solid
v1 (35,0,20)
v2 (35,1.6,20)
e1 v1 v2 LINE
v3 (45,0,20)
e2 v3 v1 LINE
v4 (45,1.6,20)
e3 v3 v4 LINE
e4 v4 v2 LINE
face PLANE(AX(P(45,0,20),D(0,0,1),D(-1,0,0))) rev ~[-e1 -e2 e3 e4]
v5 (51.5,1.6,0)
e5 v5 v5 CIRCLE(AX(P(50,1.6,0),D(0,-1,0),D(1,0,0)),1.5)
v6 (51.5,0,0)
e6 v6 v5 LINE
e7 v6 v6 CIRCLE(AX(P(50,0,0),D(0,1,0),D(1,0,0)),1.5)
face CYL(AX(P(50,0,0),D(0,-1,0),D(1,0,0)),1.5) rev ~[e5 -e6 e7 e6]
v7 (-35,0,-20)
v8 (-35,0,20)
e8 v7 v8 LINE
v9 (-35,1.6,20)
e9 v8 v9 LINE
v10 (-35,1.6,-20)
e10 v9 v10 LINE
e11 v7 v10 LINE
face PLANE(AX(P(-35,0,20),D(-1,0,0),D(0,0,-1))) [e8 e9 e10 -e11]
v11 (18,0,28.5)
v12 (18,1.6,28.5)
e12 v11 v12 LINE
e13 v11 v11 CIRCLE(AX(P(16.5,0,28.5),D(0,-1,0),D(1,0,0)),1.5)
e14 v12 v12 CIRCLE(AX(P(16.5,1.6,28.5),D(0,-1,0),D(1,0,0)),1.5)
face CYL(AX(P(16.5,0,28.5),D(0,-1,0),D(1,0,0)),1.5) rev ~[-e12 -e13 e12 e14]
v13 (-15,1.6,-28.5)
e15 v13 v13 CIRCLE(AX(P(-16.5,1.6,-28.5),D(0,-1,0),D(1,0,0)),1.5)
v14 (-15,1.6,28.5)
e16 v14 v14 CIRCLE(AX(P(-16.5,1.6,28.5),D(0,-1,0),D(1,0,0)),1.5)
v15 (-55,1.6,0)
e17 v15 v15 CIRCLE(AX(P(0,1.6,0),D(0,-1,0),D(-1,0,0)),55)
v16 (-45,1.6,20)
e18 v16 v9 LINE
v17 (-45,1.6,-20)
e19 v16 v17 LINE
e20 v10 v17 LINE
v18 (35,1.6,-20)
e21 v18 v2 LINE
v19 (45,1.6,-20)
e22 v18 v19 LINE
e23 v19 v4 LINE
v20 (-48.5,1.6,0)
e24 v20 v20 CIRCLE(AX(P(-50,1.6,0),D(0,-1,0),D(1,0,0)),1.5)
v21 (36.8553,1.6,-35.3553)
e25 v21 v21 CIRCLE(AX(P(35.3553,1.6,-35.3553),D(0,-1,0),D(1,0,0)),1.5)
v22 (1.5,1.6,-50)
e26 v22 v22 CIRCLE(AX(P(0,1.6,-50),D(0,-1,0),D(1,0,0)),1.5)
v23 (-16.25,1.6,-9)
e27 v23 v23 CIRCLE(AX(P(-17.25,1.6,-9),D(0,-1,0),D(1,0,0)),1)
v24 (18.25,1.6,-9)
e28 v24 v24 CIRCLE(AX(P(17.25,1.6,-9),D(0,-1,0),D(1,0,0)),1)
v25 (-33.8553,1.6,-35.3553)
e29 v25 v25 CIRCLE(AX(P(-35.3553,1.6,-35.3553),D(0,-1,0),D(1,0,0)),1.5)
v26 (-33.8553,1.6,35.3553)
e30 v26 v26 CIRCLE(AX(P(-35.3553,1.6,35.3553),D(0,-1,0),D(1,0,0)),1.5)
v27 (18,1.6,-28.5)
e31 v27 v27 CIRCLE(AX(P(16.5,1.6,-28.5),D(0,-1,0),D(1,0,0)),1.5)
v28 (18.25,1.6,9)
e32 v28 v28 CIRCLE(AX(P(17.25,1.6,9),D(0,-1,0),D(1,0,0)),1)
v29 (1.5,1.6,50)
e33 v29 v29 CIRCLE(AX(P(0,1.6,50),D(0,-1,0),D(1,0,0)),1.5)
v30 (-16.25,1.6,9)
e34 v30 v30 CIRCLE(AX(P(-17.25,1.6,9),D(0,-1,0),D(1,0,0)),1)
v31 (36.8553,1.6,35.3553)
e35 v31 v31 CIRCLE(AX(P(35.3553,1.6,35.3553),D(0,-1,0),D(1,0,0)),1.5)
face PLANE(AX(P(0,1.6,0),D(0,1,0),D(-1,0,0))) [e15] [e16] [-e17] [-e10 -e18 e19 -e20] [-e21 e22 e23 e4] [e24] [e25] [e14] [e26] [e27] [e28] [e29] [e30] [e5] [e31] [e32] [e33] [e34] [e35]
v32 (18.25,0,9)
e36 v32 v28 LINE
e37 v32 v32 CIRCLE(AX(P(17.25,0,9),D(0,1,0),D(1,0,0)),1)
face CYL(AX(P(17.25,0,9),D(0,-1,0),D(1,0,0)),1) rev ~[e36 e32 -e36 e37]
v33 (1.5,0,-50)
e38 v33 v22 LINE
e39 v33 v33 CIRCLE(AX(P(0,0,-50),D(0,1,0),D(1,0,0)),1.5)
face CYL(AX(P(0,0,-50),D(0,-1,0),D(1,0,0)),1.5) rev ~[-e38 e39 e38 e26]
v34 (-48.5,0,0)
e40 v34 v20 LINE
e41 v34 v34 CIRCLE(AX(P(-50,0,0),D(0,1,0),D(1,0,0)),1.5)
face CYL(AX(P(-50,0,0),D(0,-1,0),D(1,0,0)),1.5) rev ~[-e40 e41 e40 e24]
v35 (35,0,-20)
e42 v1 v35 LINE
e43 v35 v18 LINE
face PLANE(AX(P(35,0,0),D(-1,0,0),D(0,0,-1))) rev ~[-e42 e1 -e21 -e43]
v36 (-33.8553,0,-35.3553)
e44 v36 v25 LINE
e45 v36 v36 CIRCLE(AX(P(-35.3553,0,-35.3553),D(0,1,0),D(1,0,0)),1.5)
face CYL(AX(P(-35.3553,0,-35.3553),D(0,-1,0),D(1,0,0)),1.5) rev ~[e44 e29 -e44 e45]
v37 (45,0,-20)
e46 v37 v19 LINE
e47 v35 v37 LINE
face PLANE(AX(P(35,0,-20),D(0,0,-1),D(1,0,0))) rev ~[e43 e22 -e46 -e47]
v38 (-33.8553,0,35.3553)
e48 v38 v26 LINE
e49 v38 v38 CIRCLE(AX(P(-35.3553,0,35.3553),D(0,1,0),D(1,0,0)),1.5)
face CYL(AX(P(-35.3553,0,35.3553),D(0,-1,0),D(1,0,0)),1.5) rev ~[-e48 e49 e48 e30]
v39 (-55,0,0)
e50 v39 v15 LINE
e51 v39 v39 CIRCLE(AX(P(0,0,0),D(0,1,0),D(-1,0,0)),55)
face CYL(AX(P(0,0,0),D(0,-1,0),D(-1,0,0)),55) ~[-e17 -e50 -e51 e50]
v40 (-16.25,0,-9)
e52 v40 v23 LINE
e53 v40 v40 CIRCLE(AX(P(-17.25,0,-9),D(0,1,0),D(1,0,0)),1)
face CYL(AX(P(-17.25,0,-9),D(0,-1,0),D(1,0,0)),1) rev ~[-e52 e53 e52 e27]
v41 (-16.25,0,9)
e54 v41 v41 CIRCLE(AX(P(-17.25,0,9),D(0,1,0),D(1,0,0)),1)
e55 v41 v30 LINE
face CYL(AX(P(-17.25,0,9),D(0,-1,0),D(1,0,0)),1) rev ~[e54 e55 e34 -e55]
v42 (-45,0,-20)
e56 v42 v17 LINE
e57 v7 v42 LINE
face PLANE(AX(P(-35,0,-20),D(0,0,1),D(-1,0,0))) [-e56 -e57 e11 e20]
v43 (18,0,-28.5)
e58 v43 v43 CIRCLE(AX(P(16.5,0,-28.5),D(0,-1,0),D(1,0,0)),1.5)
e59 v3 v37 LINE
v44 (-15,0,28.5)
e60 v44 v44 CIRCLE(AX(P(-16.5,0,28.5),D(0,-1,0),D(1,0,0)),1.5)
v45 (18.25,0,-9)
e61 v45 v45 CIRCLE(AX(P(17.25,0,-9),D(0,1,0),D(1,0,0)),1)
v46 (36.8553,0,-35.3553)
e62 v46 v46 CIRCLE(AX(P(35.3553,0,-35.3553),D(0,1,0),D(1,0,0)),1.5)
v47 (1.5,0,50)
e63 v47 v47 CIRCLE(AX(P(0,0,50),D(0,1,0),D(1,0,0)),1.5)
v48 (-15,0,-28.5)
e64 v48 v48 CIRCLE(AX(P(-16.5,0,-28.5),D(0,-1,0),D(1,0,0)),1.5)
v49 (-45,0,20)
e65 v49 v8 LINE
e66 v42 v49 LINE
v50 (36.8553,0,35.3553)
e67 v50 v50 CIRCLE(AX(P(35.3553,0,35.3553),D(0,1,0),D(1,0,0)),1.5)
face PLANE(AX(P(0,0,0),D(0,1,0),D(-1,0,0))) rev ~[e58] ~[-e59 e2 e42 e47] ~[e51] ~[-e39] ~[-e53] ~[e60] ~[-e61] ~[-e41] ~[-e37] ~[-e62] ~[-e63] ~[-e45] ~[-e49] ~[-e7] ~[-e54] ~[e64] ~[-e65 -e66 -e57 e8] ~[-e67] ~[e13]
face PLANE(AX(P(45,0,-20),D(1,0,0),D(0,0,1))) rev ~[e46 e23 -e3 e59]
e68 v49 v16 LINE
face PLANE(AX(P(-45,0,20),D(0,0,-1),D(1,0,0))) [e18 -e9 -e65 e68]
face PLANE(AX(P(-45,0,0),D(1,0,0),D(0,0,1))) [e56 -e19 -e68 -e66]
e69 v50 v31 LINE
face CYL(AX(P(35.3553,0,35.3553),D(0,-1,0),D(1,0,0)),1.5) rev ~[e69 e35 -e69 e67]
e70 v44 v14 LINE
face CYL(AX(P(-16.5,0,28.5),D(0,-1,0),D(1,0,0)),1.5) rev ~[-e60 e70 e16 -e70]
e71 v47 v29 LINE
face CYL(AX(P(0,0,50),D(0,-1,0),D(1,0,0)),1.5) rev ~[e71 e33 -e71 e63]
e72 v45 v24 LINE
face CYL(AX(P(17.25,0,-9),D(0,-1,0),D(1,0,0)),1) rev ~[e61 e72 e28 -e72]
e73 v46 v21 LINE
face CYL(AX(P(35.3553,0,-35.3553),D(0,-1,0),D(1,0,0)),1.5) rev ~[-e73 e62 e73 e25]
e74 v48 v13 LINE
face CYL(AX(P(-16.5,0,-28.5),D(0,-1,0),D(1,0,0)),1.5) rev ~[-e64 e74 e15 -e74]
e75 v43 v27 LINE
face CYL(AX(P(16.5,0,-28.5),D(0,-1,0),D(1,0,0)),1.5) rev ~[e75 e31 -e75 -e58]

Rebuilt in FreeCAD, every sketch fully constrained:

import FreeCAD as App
import Part
import Sketcher
from FreeCAD import Vector
Q = App.Units.Quantity

doc = App.newDocument("Part")
body = doc.addObject("PartDesign::Body", "Body")

# Sketch on XZ plane
sketch1 = body.newObject("Sketcher::SketchObject", "Sketch")
sketch1.AttachmentSupport = (doc.getObject("XZ_Plane"), [""])
sketch1.MapMode = "FlatFace"
sketch1.addGeometry(Part.Circle(Vector(0, 0, 0), Vector(0, 0, 1), 55), False)
sketch1.addConstraint(Sketcher.Constraint("Coincident", 0, 3, -1, 1))
sketch1.addConstraint(Sketcher.Constraint("Diameter", 0, Q("110 mm")))
pad1 = body.newObject("PartDesign::Pad", "Pad")
pad1.Profile = sketch1
pad1.Length = 1.6
pad1.Reversed = True

# Sketch on XZ plane
sketch2 = body.newObject("Sketcher::SketchObject", "Sketch001")
sketch2.AttachmentSupport = (doc.getObject("XZ_Plane"), [""])
sketch2.MapMode = "FlatFace"
sketch2.addGeometry(Part.Circle(Vector(50, 0, 0), Vector(0, 0, 1), 1.5), False)
sketch2.addGeometry(Part.Circle(Vector(0, 50, 0), Vector(0, 0, 1), 1.5), False)
sketch2.addGeometry(Part.Circle(Vector(0, -50, 0), Vector(0, 0, 1), 1.5), False)
sketch2.addGeometry(Part.Circle(Vector(-50, 0, 0), Vector(0, 0, 1), 1.5), False)
sketch2.addGeometry(Part.Circle(Vector(35.4, 35.4, 0), Vector(0, 0, 1), 1.5), False)
sketch2.addGeometry(Part.Circle(Vector(35.4, -35.4, 0), Vector(0, 0, 1), 1.5), False)
sketch2.addGeometry(Part.Circle(Vector(-35.4, 35.4, 0), Vector(0, 0, 1), 1.5), False)
sketch2.addGeometry(Part.Circle(Vector(-35.4, -35.4, 0), Vector(0, 0, 1), 1.5), False)
sketch2.addGeometry(Part.LineSegment(Vector(45, -20, 0), Vector(45, 20, 0)), False)
sketch2.addGeometry(Part.LineSegment(Vector(45, 20, 0), Vector(35, 20, 0)), False)
sketch2.addGeometry(Part.LineSegment(Vector(35, 20, 0), Vector(35, -20, 0)), False)
sketch2.addGeometry(Part.LineSegment(Vector(35, -20, 0), Vector(45, -20, 0)), False)
sketch2.addGeometry(Part.LineSegment(Vector(-45, 20, 0), Vector(-45, -20, 0)), False)
sketch2.addGeometry(Part.LineSegment(Vector(-45, -20, 0), Vector(-35, -20, 0)), False)
sketch2.addGeometry(Part.LineSegment(Vector(-35, -20, 0), Vector(-35, 20, 0)), False)
sketch2.addGeometry(Part.LineSegment(Vector(-35, 20, 0), Vector(-45, 20, 0)), False)
sketch2.addGeometry(Part.Circle(Vector(-17.2, -9, 0), Vector(0, 0, 1), 1), False)
sketch2.addGeometry(Part.Circle(Vector(-17.2, 9, 0), Vector(0, 0, 1), 1), False)
sketch2.addGeometry(Part.Circle(Vector(17.2, -9, 0), Vector(0, 0, 1), 1), False)
sketch2.addGeometry(Part.Circle(Vector(17.2, 9, 0), Vector(0, 0, 1), 1), False)
sketch2.addConstraint(Sketcher.Constraint("Coincident", 8, 2, 9, 1))
sketch2.addConstraint(Sketcher.Constraint("Coincident", 9, 2, 10, 1))
sketch2.addConstraint(Sketcher.Constraint("Coincident", 10, 2, 11, 1))
sketch2.addConstraint(Sketcher.Constraint("Coincident", 11, 2, 8, 1))
sketch2.addConstraint(Sketcher.Constraint("Coincident", 12, 2, 13, 1))
sketch2.addConstraint(Sketcher.Constraint("Coincident", 13, 2, 14, 1))
sketch2.addConstraint(Sketcher.Constraint("Coincident", 14, 2, 15, 1))
sketch2.addConstraint(Sketcher.Constraint("Coincident", 15, 2, 12, 1))
sketch2.addConstraint(Sketcher.Constraint("Vertical", 8))
sketch2.addConstraint(Sketcher.Constraint("Horizontal", 9))
sketch2.addConstraint(Sketcher.Constraint("Vertical", 10))
sketch2.addConstraint(Sketcher.Constraint("Horizontal", 11))
sketch2.addConstraint(Sketcher.Constraint("Vertical", 12))
sketch2.addConstraint(Sketcher.Constraint("Horizontal", 13))
sketch2.addConstraint(Sketcher.Constraint("Vertical", 14))
sketch2.addConstraint(Sketcher.Constraint("Horizontal", 15))
sketch2.addConstraint(Sketcher.Constraint("Equal", 0, 1))
sketch2.addConstraint(Sketcher.Constraint("Equal", 1, 2))
sketch2.addConstraint(Sketcher.Constraint("Equal", 2, 3))
sketch2.addConstraint(Sketcher.Constraint("Equal", 3, 4))
sketch2.addConstraint(Sketcher.Constraint("Equal", 4, 5))
sketch2.addConstraint(Sketcher.Constraint("Equal", 5, 6))
sketch2.addConstraint(Sketcher.Constraint("Equal", 6, 7))
sketch2.addConstraint(Sketcher.Constraint("Equal", 16, 17))
sketch2.addConstraint(Sketcher.Constraint("Equal", 17, 18))
sketch2.addConstraint(Sketcher.Constraint("Equal", 18, 19))
sketch2.addConstraint(Sketcher.Constraint("Symmetric", 1, 3, 2, 3, -1, 1))
sketch2.addConstraint(Sketcher.Constraint("Symmetric", 0, 3, 3, 3, -1, 1))
sketch2.addConstraint(Sketcher.Constraint("Symmetric", 5, 3, 6, 3, -1, 1))
sketch2.addConstraint(Sketcher.Constraint("Symmetric", 4, 3, 7, 3, -1, 1))
sketch2.addConstraint(Sketcher.Constraint("Symmetric", 17, 3, 18, 3, -1, 1))
sketch2.addConstraint(Sketcher.Constraint("Symmetric", 16, 3, 19, 3, -1, 1))
sketch2.addConstraint(Sketcher.Constraint("Symmetric", 8, 2, 12, 2, -1, 1))
sketch2.addConstraint(Sketcher.Constraint("Symmetric", 10, 2, 14, 2, -1, 1))
sketch2.addConstraint(Sketcher.Constraint("Symmetric", 4, 3, 6, 3, -2))
sketch2.addConstraint(Sketcher.Constraint("Symmetric", 16, 3, 18, 3, -2))
sketch2.addConstraint(Sketcher.Constraint("PointOnObject", 0, 3, -1))
sketch2.addConstraint(Sketcher.Constraint("PointOnObject", 1, 3, -2))
sketch2.addConstraint(Sketcher.Constraint("Horizontal", 11, 2, 12, 2))
sketch2.addConstraint(Sketcher.Constraint("Diameter", 0, Q("3 mm")))
sketch2.addConstraint(Sketcher.Constraint("Diameter", 16, Q("2 mm")))
sketch2.addConstraint(Sketcher.Constraint("DistanceX", 9, 2, 9, 1, Q("10 mm")))
sketch2.addConstraint(Sketcher.Constraint("DistanceY", 8, 1, 8, 2, Q("40 mm")))
sketch2.addConstraint(Sketcher.Constraint("DistanceX", -1, 1, 8, 2, Q("45 mm")))
sketch2.addConstraint(Sketcher.Constraint("DistanceY", 2, 3, 1, 3, Q("100 mm")))
sketch2.addConstraint(Sketcher.Constraint("DistanceX", 3, 3, 0, 3, Q("100 mm")))
sketch2.addConstraint(Sketcher.Constraint("DistanceY", 16, 3, 17, 3, Q("18 mm")))
sketch2.addConstraint(Sketcher.Constraint("DistanceX", 16, 3, 18, 3, Q("34.5 mm")))
sketch2.addConstraint(Sketcher.Constraint("DistanceX", -1, 1, 4, 3, Q("35.3553 mm")))
sketch2.addConstraint(Sketcher.Constraint("DistanceY", -1, 1, 4, 3, Q("35.3553 mm")))
pocket1 = body.newObject("PartDesign::Pocket", "Pocket")
pocket1.Profile = sketch2
pocket1.Length = 1.6

# Sketch on XZ plane
sketch3 = body.newObject("Sketcher::SketchObject", "Sketch002")
sketch3.AttachmentSupport = (doc.getObject("XZ_Plane"), [""])
sketch3.MapMode = "FlatFace"
sketch3.addGeometry(Part.Circle(Vector(-16.5, -28.5, 0), Vector(0, 0, 1), 1.5), False)
sketch3.addGeometry(Part.Circle(Vector(16.5, -28.5, 0), Vector(0, 0, 1), 1.5), False)
sketch3.addGeometry(Part.Circle(Vector(16.5, 28.5, 0), Vector(0, 0, 1), 1.5), False)
sketch3.addGeometry(Part.Circle(Vector(-16.5, 28.5, 0), Vector(0, 0, 1), 1.5), False)
sketch3.addConstraint(Sketcher.Constraint("Equal", 0, 1))
sketch3.addConstraint(Sketcher.Constraint("Equal", 1, 2))
sketch3.addConstraint(Sketcher.Constraint("Equal", 2, 3))
sketch3.addConstraint(Sketcher.Constraint("Symmetric", 0, 3, 2, 3, -1, 1))
sketch3.addConstraint(Sketcher.Constraint("Symmetric", 1, 3, 3, 3, -1, 1))
sketch3.addConstraint(Sketcher.Constraint("Symmetric", 0, 3, 1, 3, -2))
sketch3.addConstraint(Sketcher.Constraint("Diameter", 0, Q("3 mm")))
sketch3.addConstraint(Sketcher.Constraint("DistanceX", 0, 3, 1, 3, Q("33 mm")))
sketch3.addConstraint(Sketcher.Constraint("DistanceY", 1, 3, 2, 3, Q("57 mm")))
pocket2 = body.newObject("PartDesign::Pocket", "Pocket001")
pocket2.Profile = sketch3
pocket2.Length = 1.6

doc.recompute()
